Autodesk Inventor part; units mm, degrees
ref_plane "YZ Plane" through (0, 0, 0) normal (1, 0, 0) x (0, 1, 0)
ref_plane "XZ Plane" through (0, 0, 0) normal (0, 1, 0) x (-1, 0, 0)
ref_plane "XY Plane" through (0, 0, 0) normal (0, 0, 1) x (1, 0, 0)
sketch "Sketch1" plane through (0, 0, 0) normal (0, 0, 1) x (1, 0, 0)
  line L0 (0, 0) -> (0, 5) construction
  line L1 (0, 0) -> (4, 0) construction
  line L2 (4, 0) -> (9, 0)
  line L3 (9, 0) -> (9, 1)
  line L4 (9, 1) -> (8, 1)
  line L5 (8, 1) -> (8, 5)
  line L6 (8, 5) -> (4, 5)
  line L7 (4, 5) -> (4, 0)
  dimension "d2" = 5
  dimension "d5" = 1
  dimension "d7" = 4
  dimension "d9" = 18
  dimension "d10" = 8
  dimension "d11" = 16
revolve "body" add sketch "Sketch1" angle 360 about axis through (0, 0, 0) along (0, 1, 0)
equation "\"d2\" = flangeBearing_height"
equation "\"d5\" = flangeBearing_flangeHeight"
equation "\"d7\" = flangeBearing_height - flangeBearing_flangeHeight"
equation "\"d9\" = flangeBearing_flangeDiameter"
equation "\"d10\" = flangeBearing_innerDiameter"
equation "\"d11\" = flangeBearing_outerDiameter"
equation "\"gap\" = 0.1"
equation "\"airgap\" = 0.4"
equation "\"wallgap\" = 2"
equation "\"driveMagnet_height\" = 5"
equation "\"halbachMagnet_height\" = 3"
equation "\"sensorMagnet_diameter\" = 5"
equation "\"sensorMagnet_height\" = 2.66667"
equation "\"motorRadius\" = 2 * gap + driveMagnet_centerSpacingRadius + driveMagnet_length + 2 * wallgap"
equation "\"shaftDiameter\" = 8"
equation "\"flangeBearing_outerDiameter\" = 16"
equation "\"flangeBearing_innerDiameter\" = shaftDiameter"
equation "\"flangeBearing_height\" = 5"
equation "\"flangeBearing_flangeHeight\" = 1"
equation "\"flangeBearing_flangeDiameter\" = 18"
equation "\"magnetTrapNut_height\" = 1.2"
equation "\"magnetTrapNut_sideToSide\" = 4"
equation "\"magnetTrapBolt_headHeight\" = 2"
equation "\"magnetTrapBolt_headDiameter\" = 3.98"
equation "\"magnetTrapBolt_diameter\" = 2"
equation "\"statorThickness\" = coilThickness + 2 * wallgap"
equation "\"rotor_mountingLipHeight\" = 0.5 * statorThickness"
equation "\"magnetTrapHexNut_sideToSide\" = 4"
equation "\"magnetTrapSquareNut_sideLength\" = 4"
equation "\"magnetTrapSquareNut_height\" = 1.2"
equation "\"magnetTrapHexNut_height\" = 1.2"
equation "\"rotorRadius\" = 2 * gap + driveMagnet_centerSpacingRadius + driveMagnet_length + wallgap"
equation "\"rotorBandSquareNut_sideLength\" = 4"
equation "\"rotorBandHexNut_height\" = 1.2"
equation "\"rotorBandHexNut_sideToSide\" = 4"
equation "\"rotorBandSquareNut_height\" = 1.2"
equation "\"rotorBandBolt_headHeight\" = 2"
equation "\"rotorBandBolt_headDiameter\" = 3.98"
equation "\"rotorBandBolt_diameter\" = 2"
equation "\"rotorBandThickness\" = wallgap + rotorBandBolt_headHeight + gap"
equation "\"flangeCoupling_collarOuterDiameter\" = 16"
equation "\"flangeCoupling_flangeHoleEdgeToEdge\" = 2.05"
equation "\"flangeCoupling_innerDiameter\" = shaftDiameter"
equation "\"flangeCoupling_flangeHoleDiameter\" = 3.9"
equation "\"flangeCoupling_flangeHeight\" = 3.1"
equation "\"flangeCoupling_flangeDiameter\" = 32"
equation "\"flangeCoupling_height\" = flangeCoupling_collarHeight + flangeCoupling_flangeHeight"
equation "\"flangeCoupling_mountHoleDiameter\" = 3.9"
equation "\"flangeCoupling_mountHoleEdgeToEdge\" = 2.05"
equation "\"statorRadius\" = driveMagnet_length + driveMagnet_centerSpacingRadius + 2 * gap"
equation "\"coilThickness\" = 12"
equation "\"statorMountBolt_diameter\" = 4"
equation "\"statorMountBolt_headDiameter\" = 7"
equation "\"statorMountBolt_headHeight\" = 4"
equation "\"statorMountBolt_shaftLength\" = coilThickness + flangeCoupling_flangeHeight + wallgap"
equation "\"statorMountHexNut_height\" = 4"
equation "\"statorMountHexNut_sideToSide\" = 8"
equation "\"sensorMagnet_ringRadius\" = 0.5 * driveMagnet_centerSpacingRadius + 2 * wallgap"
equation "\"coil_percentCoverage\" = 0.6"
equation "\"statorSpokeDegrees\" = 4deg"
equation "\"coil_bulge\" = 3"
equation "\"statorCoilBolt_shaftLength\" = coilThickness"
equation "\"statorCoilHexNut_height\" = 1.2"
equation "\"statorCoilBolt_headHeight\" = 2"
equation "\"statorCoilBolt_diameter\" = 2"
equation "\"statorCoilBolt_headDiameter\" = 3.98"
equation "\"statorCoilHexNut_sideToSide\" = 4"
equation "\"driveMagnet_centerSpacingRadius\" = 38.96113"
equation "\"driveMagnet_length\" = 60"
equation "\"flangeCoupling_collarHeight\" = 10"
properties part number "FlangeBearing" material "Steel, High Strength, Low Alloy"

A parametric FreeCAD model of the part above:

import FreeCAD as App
import Part
import Sketcher

V = App.Vector
Q = App.Units.Quantity


def add_polygon(sketch, points):
    """Adds a closed chain of lines whose ends are joined by coincident constraints."""
    first, n = sketch.GeometryCount, len(points)
    for a, b in zip(points, points[1:] + points[:1]):
        sketch.addGeometry(Part.LineSegment(App.Vector(*a, 0), App.Vector(*b, 0)), False)
    for i in range(n):
        sketch.addConstraint(Sketcher.Constraint("Coincident", first + i, 2, first + (i + 1) % n, 1))

doc = App.newDocument("Part")
body = doc.addObject("PartDesign::Body", "Body")

# Sketch on XY plane
sketch1 = body.newObject("Sketcher::SketchObject", "Sketch")
sketch1.AttachmentSupport = (doc.getObject("XY_Plane"), [""])
sketch1.MapMode = "FlatFace"
add_polygon(sketch1, [(4, 5), (4, 0), (9, 0), (9, 1), (8, 1), (8, 5)])  # lines 0-5
sketch1.addConstraint(Sketcher.Constraint("Vertical", 0))
sketch1.addConstraint(Sketcher.Constraint("Horizontal", 1))
sketch1.addConstraint(Sketcher.Constraint("Vertical", 2))
sketch1.addConstraint(Sketcher.Constraint("Horizontal", 3))
sketch1.addConstraint(Sketcher.Constraint("Vertical", 4))
sketch1.addConstraint(Sketcher.Constraint("Horizontal", 5))
sketch1.addConstraint(Sketcher.Constraint("PointOnObject", 0, 2, -1))
sketch1.addConstraint(Sketcher.Constraint("Equal", 1, 0))
sketch1.addConstraint(Sketcher.Constraint("Equal", 3, 2))
sketch1.addConstraint(Sketcher.Constraint("DistanceX", 1, 1, 1, 2, Q("5 mm")))
sketch1.addConstraint(Sketcher.Constraint("DistanceX", 3, 2, 3, 1, Q("1 mm")))
sketch1.addConstraint(Sketcher.Constraint("DistanceX", -1, 1, 0, 2, Q("4 mm")))
revolution = body.newObject("PartDesign::Revolution", "Revolution")
revolution.Profile = sketch1
revolution.ReferenceAxis = (sketch1, ["V_Axis"])
revolution.Angle = 360

doc.recompute()
